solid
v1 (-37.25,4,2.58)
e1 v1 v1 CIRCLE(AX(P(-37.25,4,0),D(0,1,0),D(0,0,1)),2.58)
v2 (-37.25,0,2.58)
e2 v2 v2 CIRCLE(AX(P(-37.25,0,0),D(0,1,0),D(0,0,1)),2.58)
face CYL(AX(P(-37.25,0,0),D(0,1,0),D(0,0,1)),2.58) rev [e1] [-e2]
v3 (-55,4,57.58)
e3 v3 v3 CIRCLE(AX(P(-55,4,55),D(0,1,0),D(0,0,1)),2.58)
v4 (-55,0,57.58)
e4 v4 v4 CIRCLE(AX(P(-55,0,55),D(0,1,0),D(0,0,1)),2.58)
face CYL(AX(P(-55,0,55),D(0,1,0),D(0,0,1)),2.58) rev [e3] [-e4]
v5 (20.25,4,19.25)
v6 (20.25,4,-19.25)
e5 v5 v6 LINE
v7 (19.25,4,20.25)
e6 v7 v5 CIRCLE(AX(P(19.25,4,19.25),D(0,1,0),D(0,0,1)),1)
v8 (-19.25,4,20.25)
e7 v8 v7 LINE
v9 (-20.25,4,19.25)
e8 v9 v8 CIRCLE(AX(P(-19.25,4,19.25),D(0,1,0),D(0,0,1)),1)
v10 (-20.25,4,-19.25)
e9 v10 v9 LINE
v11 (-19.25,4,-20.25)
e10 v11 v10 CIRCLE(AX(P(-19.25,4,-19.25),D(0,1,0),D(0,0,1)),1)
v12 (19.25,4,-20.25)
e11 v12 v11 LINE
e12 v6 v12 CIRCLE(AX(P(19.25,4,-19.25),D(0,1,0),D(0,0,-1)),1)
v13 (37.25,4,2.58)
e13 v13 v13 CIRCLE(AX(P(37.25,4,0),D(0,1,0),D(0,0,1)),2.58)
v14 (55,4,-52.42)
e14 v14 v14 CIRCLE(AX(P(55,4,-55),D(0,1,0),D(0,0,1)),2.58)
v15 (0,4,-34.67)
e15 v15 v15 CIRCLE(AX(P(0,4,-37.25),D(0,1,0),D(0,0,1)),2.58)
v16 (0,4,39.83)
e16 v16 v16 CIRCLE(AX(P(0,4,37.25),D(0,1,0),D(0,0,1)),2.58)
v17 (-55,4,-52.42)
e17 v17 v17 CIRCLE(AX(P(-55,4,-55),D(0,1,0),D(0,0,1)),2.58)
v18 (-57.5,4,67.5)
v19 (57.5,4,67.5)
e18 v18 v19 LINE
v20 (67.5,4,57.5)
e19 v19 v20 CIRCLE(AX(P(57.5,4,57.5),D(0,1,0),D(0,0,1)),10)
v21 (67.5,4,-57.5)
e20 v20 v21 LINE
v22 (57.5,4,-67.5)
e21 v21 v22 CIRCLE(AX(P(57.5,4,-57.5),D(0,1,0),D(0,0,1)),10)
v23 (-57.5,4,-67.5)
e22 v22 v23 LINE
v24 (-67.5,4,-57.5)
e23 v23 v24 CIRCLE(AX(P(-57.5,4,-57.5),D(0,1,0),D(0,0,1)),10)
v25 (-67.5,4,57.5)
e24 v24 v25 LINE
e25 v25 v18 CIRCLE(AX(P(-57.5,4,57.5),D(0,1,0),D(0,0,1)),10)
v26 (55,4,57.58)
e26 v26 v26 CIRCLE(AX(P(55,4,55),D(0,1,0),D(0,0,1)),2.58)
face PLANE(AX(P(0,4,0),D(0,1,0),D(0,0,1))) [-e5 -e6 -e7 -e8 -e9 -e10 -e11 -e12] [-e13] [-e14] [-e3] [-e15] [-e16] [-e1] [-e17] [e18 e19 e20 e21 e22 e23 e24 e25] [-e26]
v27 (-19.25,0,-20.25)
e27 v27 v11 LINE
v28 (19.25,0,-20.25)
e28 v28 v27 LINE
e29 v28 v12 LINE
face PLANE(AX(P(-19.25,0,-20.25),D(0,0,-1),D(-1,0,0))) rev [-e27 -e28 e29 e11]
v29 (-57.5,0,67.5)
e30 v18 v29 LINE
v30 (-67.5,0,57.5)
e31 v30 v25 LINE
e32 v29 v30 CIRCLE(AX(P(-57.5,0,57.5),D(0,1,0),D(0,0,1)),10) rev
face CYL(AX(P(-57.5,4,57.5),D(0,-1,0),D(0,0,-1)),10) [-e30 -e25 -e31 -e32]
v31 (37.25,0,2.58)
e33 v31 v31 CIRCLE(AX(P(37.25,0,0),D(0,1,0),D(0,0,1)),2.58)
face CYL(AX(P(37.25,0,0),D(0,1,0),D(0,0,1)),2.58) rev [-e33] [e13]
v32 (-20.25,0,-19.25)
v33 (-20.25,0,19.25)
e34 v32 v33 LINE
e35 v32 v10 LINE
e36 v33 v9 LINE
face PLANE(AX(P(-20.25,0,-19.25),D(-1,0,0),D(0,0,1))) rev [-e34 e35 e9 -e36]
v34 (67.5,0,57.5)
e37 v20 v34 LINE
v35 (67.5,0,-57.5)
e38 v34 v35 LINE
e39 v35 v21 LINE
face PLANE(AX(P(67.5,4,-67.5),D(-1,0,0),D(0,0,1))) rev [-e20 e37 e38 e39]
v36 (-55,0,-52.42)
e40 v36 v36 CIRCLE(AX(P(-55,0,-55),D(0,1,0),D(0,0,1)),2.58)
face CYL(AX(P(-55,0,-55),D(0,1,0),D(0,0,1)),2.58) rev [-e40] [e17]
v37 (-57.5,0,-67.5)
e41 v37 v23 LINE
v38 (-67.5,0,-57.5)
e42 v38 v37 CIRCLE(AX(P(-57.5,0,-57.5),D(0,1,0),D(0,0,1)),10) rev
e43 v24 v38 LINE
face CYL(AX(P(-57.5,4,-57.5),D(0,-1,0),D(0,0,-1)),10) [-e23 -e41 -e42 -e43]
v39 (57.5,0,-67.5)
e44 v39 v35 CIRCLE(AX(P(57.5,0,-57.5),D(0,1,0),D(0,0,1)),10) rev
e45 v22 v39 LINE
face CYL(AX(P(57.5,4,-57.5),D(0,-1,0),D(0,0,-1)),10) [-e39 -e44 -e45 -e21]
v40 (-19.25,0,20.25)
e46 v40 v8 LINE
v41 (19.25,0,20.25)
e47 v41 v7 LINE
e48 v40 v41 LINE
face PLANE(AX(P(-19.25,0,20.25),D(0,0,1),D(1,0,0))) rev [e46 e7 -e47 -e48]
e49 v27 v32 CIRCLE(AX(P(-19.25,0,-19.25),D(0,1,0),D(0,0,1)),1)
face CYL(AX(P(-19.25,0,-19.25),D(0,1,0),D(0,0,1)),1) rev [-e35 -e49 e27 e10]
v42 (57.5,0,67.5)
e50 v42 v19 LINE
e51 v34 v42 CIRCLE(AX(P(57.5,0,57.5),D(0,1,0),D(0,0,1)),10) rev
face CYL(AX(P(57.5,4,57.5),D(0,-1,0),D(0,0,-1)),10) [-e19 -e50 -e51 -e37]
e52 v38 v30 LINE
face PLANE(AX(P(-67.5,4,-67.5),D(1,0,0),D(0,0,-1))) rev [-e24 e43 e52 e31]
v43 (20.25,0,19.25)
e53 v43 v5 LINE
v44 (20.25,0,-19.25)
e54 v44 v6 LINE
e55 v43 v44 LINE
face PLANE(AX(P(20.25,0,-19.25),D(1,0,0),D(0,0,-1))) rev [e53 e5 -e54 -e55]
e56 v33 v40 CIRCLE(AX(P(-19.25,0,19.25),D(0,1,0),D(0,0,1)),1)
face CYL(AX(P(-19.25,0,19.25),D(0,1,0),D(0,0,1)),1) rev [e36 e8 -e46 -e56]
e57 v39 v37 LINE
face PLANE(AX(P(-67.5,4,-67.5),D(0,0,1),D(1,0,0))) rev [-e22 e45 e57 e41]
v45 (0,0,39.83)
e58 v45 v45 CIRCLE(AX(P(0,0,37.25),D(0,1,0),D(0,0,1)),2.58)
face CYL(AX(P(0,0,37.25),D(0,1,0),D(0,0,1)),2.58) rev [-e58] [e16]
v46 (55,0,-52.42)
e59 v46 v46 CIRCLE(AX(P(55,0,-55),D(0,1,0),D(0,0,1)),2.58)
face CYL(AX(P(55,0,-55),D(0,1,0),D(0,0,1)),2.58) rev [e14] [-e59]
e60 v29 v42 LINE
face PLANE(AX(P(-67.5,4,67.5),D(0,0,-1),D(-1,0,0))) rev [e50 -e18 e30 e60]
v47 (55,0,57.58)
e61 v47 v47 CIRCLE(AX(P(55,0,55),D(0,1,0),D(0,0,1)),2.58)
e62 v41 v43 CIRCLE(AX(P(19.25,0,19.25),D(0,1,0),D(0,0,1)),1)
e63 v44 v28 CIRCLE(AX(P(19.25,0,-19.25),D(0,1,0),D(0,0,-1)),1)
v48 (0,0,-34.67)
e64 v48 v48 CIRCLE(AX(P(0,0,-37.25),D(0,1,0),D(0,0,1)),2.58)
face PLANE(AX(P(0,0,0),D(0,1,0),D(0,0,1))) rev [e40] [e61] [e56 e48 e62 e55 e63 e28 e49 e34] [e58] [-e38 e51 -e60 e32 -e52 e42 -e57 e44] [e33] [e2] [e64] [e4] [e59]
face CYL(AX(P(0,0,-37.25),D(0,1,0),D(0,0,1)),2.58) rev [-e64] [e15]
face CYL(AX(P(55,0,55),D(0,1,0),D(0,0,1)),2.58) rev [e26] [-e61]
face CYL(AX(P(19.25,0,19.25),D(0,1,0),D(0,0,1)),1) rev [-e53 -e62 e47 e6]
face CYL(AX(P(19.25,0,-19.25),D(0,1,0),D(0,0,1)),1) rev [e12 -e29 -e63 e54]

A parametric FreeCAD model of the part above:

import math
import FreeCAD as App
import Part
import Sketcher

V = App.Vector
Q = App.Units.Quantity


def edges_at(feature, points):
    """Names of the edges that pass closest to the given points."""
    edges = feature.Shape.Edges
    near = lambda p: min(range(len(edges)), key=lambda i: edges[i].distToShape(Part.Vertex(*p))[0])
    return sorted({f"Edge{near(p) + 1}" for p in points})

doc = App.newDocument("Part")
body = doc.addObject("PartDesign::Body", "Body")

sketch1 = body.newObject("Sketcher::SketchObject", "Sketch")
sketch1.AttachmentSupport = (doc.getObject("XZ_Plane"), [""])
sketch1.MapMode = "FlatFace"
sketch1.addGeometry([
    Part.LineSegment(V(-68, -68, 0), V(-68, 68, 0)),
    Part.LineSegment(V(-68, 68, 0), V(68, 68, 0)),
    Part.LineSegment(V(68, 68, 0), V(68, -68, 0)),
    Part.LineSegment(V(68, -68, 0), V(-68, -68, 0)),
], False)
sketch1.addConstraint([
    Sketcher.Constraint("Coincident", 0, 2, 1, 1),
    Sketcher.Constraint("Coincident", 1, 2, 2, 1),
    Sketcher.Constraint("Coincident", 2, 2, 3, 1),
    Sketcher.Constraint("Coincident", 3, 2, 0, 1),
    Sketcher.Constraint("Vertical", 0),
    Sketcher.Constraint("Horizontal", 1),
    Sketcher.Constraint("Vertical", 2),
    Sketcher.Constraint("Horizontal", 3),
    Sketcher.Constraint("Symmetric", 0, 2, 2, 2, -1, 1),
    Sketcher.Constraint("Equal", 3, 0),
    Sketcher.Constraint("DistanceX", 1, 1, 1, 2, Q("135 mm")),
])
pad1 = body.newObject("PartDesign::Pad", "Pad")
pad1.Profile = sketch1
pad1.Length = 4
pad1.Reversed = True

sketch2 = body.newObject("Sketcher::SketchObject", "Sketch001")
sketch2.AttachmentSupport = (doc.getObject("XZ_Plane"), [""])
sketch2.MapMode = "FlatFace"
sketch2.AttachmentOffset = App.Placement(V(0, 0, -4), App.Rotation())
sketch2.addGeometry([
    Part.LineSegment(V(19.2, -20.2, 0), V(-19.2, -20.2, 0)),
    Part.ArcOfCircle(Part.Circle(V(-19.2, -19.2, 0), V(0, 0, 1), 1), math.radians(-180), math.radians(-90)),
    Part.LineSegment(V(-20.2, -19.2, 0), V(-20.2, 19.2, 0)),
    Part.ArcOfCircle(Part.Circle(V(-19.2, 19.2, 0), V(0, 0, 1), 1), math.radians(90), math.radians(180)),
    Part.LineSegment(V(-19.2, 20.2, 0), V(19.2, 20.2, 0)),
    Part.ArcOfCircle(Part.Circle(V(19.2, 19.2, 0), V(0, 0, 1), 1), math.radians(0), math.radians(90)),
    Part.LineSegment(V(20.2, 19.2, 0), V(20.2, -19.2, 0)),
    Part.ArcOfCircle(Part.Circle(V(19.2, -19.2, 0), V(0, 0, 1), 1), math.radians(-90), math.radians(0)),
], False)
sketch2.addConstraint([
    Sketcher.Constraint("Tangent", 0, 2, 1, 2),
    Sketcher.Constraint("Tangent", 1, 1, 2, 1),
    Sketcher.Constraint("Tangent", 2, 2, 3, 2),
    Sketcher.Constraint("Tangent", 3, 1, 4, 1),
    Sketcher.Constraint("Tangent", 4, 2, 5, 2),
    Sketcher.Constraint("Tangent", 5, 1, 6, 1),
    Sketcher.Constraint("Tangent", 6, 2, 7, 2),
    Sketcher.Constraint("Tangent", 7, 1, 0, 1),
    Sketcher.Constraint("Horizontal", 0),
    Sketcher.Constraint("Vertical", 2),
    Sketcher.Constraint("Horizontal", 4),
    Sketcher.Constraint("Vertical", 6),
    Sketcher.Constraint("Equal", 1, 3),
    Sketcher.Constraint("Equal", 3, 5),
    Sketcher.Constraint("Equal", 5, 7),
    Sketcher.Constraint("Symmetric", 1, 3, 5, 3, -1, 1),
    Sketcher.Constraint("Equal", 4, 2),
    Sketcher.Constraint("Radius", 1, Q("1 mm")),
    Sketcher.Constraint("DistanceX", 0, 2, 0, 1, Q("38.5 mm")),
])
pocket1 = body.newObject("PartDesign::Pocket", "Pocket")
pocket1.Profile = sketch2
pocket1.Type = "ThroughAll"
pocket1.Reversed = True

sketch3 = body.newObject("Sketcher::SketchObject", "Sketch002")
sketch3.AttachmentSupport = (doc.getObject("XZ_Plane"), [""])
sketch3.MapMode = "FlatFace"
sketch3.AttachmentOffset = App.Placement(V(0, 0, -4), App.Rotation())
sketch3.addGeometry([
    Part.Circle(V(-37.2, 0, 0), V(0, 0, 1), 2.6),
    Part.Circle(V(0, -37.2, 0), V(0, 0, 1), 2.6),
    Part.Circle(V(37.2, 0, 0), V(0, 0, 1), 2.6),
    Part.Circle(V(0, 37.2, 0), V(0, 0, 1), 2.6),
], False)
sketch3.addConstraint([
    Sketcher.Constraint("Equal", 0, 1),
    Sketcher.Constraint("Equal", 1, 2),
    Sketcher.Constraint("Equal", 2, 3),
    Sketcher.Constraint("Symmetric", 0, 3, 2, 3, -1, 1),
    Sketcher.Constraint("Symmetric", 1, 3, 3, 3, -1, 1),
    Sketcher.Constraint("PointOnObject", 0, 3, -1),
    Sketcher.Constraint("PointOnObject", 1, 3, -2),
    Sketcher.Constraint("Diameter", 0, Q("5.16 mm")),
    Sketcher.Constraint("DistanceX", 0, 3, 2, 3, Q("74.5 mm")),
    Sketcher.Constraint("DistanceY", 1, 3, 3, 3, Q("74.5 mm")),
])
pocket2 = body.newObject("PartDesign::Pocket", "Pocket001")
pocket2.Profile = sketch3
pocket2.Type = "ThroughAll"
pocket2.Reversed = True

sketch4 = body.newObject("Sketcher::SketchObject", "Sketch003")
sketch4.AttachmentSupport = (doc.getObject("XZ_Plane"), [""])
sketch4.MapMode = "FlatFace"
sketch4.AttachmentOffset = App.Placement(V(0, 0, -4), App.Rotation())
sketch4.addGeometry([
    Part.Circle(V(-55, -55, 0), V(0, 0, 1), 2.6),
    Part.Circle(V(55, -55, 0), V(0, 0, 1), 2.6),
    Part.Circle(V(55, 55, 0), V(0, 0, 1), 2.6),
    Part.Circle(V(-55, 55, 0), V(0, 0, 1), 2.6),
], False)
sketch4.addConstraint([
    Sketcher.Constraint("Equal", 0, 1),
    Sketcher.Constraint("Equal", 1, 2),
    Sketcher.Constraint("Equal", 2, 3),
    Sketcher.Constraint("Symmetric", 0, 3, 2, 3, -1, 1),
    Sketcher.Constraint("Symmetric", 1, 3, 3, 3, -1, 1),
    Sketcher.Constraint("Symmetric", 0, 3, 1, 3, -2),
    Sketcher.Constraint("Diameter", 0, Q("5.16 mm")),
    Sketcher.Constraint("DistanceX", 0, 3, -1, 1, Q("55 mm")),
    Sketcher.Constraint("DistanceY", 0, 3, -1, 1, Q("55 mm")),
])
pocket3 = body.newObject("PartDesign::Pocket", "Pocket002")
pocket3.Profile = sketch4
pocket3.Type = "ThroughAll"
pocket3.Reversed = True
doc.recompute()

fillet = body.newObject("PartDesign::Fillet", "Fillet")
fillet.Base = (pocket3, edges_at(pocket3, [
    (67.5, 2, 67.5),
    (-67.5, 2, 67.5),
    (-67.5, 2, -67.5),
    (67.5, 2, -67.5),
]))
fillet.Radius = 10

doc.recompute()
